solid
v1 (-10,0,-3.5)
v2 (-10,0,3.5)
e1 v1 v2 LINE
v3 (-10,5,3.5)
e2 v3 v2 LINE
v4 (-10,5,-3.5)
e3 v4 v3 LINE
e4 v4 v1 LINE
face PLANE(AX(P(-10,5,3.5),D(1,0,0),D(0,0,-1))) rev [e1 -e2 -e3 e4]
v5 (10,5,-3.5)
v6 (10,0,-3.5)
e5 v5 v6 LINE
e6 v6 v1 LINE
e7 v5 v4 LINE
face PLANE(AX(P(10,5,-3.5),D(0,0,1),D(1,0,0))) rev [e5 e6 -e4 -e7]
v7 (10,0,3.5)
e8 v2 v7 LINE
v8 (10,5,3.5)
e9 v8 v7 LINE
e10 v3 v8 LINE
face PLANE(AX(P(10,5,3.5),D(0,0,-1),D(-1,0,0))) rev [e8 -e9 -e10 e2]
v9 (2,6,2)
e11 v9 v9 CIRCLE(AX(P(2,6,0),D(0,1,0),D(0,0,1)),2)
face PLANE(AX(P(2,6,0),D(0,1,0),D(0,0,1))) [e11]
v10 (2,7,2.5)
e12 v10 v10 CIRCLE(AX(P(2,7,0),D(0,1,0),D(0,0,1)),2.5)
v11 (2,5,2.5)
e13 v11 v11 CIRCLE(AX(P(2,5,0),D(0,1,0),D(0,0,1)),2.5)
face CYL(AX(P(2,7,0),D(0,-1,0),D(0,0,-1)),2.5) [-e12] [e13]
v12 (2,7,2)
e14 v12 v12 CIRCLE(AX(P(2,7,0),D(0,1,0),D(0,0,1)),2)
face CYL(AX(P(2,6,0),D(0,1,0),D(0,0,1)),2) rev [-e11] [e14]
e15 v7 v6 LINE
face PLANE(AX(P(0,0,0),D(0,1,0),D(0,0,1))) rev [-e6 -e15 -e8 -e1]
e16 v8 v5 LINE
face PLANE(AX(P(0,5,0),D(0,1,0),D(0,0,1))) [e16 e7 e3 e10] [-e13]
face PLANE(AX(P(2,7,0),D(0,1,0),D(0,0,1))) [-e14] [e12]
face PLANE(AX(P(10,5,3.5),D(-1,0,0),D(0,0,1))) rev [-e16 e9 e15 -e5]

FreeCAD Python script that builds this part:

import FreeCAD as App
import Part
import Sketcher
from FreeCAD import Vector
Q = App.Units.Quantity

doc = App.newDocument("Part")
body = doc.addObject("PartDesign::Body", "Body")

# Sketch on XZ plane
sketch1 = body.newObject("Sketcher::SketchObject", "Sketch")
sketch1.AttachmentSupport = (doc.getObject("XZ_Plane"), [""])
sketch1.MapMode = "FlatFace"
sketch1.addGeometry(Part.LineSegment(Vector(-10, -3.5, 0), Vector(-10, 3.5, 0)), False)
sketch1.addGeometry(Part.LineSegment(Vector(-10, 3.5, 0), Vector(10, 3.5, 0)), False)
sketch1.addGeometry(Part.LineSegment(Vector(10, 3.5, 0), Vector(10, -3.5, 0)), False)
sketch1.addGeometry(Part.LineSegment(Vector(10, -3.5, 0), Vector(-10, -3.5, 0)), False)
sketch1.addConstraint(Sketcher.Constraint("Coincident", 0, 2, 1, 1))
sketch1.addConstraint(Sketcher.Constraint("Coincident", 1, 2, 2, 1))
sketch1.addConstraint(Sketcher.Constraint("Coincident", 2, 2, 3, 1))
sketch1.addConstraint(Sketcher.Constraint("Coincident", 3, 2, 0, 1))
sketch1.addConstraint(Sketcher.Constraint("Vertical", 0))
sketch1.addConstraint(Sketcher.Constraint("Horizontal", 1))
sketch1.addConstraint(Sketcher.Constraint("Vertical", 2))
sketch1.addConstraint(Sketcher.Constraint("Horizontal", 3))
sketch1.addConstraint(Sketcher.Constraint("Symmetric", 0, 2, 2, 2, -1, 1))
sketch1.addConstraint(Sketcher.Constraint("DistanceX", 1, 1, 1, 2, Q("20 mm")))
sketch1.addConstraint(Sketcher.Constraint("DistanceY", 0, 1, 0, 2, Q("7 mm")))
pad1 = body.newObject("PartDesign::Pad", "Pad")
pad1.Profile = sketch1
pad1.Length = 5
pad1.Reversed = True

# Sketch on XZ plane
sketch2 = body.newObject("Sketcher::SketchObject", "Sketch001")
sketch2.AttachmentSupport = (doc.getObject("XZ_Plane"), [""])
sketch2.MapMode = "FlatFace"
sketch2.AttachmentOffset = App.Placement(Vector(0, 0, -5), App.Rotation())
sketch2.addGeometry(Part.Circle(Vector(2, 0, 0), Vector(0, 0, 1), 2.5), False)
sketch2.addConstraint(Sketcher.Constraint("PointOnObject", 0, 3, -1))
sketch2.addConstraint(Sketcher.Constraint("Diameter", 0, Q("5 mm")))
sketch2.addConstraint(Sketcher.Constraint("DistanceX", -1, 1, 0, 3, Q("2 mm")))
pad2 = body.newObject("PartDesign::Pad", "Pad001")
pad2.Profile = sketch2
pad2.Length = 2
pad2.Reversed = True

# Sketch on XZ plane
sketch3 = body.newObject("Sketcher::SketchObject", "Sketch002")
sketch3.AttachmentSupport = (doc.getObject("XZ_Plane"), [""])
sketch3.MapMode = "FlatFace"
sketch3.AttachmentOffset = App.Placement(Vector(0, 0, -7), App.Rotation())
sketch3.addGeometry(Part.Circle(Vector(2, 0, 0), Vector(0, 0, 1), 2), False)
sketch3.addConstraint(Sketcher.Constraint("PointOnObject", 0, 3, -1))
sketch3.addConstraint(Sketcher.Constraint("Diameter", 0, Q("4 mm")))
sketch3.addConstraint(Sketcher.Constraint("DistanceX", -1, 1, 0, 3, Q("2 mm")))
pocket1 = body.newObject("PartDesign::Pocket", "Pocket")
pocket1.Profile = sketch3
pocket1.Length = 1
pocket1.Reversed = True

doc.recompute()
